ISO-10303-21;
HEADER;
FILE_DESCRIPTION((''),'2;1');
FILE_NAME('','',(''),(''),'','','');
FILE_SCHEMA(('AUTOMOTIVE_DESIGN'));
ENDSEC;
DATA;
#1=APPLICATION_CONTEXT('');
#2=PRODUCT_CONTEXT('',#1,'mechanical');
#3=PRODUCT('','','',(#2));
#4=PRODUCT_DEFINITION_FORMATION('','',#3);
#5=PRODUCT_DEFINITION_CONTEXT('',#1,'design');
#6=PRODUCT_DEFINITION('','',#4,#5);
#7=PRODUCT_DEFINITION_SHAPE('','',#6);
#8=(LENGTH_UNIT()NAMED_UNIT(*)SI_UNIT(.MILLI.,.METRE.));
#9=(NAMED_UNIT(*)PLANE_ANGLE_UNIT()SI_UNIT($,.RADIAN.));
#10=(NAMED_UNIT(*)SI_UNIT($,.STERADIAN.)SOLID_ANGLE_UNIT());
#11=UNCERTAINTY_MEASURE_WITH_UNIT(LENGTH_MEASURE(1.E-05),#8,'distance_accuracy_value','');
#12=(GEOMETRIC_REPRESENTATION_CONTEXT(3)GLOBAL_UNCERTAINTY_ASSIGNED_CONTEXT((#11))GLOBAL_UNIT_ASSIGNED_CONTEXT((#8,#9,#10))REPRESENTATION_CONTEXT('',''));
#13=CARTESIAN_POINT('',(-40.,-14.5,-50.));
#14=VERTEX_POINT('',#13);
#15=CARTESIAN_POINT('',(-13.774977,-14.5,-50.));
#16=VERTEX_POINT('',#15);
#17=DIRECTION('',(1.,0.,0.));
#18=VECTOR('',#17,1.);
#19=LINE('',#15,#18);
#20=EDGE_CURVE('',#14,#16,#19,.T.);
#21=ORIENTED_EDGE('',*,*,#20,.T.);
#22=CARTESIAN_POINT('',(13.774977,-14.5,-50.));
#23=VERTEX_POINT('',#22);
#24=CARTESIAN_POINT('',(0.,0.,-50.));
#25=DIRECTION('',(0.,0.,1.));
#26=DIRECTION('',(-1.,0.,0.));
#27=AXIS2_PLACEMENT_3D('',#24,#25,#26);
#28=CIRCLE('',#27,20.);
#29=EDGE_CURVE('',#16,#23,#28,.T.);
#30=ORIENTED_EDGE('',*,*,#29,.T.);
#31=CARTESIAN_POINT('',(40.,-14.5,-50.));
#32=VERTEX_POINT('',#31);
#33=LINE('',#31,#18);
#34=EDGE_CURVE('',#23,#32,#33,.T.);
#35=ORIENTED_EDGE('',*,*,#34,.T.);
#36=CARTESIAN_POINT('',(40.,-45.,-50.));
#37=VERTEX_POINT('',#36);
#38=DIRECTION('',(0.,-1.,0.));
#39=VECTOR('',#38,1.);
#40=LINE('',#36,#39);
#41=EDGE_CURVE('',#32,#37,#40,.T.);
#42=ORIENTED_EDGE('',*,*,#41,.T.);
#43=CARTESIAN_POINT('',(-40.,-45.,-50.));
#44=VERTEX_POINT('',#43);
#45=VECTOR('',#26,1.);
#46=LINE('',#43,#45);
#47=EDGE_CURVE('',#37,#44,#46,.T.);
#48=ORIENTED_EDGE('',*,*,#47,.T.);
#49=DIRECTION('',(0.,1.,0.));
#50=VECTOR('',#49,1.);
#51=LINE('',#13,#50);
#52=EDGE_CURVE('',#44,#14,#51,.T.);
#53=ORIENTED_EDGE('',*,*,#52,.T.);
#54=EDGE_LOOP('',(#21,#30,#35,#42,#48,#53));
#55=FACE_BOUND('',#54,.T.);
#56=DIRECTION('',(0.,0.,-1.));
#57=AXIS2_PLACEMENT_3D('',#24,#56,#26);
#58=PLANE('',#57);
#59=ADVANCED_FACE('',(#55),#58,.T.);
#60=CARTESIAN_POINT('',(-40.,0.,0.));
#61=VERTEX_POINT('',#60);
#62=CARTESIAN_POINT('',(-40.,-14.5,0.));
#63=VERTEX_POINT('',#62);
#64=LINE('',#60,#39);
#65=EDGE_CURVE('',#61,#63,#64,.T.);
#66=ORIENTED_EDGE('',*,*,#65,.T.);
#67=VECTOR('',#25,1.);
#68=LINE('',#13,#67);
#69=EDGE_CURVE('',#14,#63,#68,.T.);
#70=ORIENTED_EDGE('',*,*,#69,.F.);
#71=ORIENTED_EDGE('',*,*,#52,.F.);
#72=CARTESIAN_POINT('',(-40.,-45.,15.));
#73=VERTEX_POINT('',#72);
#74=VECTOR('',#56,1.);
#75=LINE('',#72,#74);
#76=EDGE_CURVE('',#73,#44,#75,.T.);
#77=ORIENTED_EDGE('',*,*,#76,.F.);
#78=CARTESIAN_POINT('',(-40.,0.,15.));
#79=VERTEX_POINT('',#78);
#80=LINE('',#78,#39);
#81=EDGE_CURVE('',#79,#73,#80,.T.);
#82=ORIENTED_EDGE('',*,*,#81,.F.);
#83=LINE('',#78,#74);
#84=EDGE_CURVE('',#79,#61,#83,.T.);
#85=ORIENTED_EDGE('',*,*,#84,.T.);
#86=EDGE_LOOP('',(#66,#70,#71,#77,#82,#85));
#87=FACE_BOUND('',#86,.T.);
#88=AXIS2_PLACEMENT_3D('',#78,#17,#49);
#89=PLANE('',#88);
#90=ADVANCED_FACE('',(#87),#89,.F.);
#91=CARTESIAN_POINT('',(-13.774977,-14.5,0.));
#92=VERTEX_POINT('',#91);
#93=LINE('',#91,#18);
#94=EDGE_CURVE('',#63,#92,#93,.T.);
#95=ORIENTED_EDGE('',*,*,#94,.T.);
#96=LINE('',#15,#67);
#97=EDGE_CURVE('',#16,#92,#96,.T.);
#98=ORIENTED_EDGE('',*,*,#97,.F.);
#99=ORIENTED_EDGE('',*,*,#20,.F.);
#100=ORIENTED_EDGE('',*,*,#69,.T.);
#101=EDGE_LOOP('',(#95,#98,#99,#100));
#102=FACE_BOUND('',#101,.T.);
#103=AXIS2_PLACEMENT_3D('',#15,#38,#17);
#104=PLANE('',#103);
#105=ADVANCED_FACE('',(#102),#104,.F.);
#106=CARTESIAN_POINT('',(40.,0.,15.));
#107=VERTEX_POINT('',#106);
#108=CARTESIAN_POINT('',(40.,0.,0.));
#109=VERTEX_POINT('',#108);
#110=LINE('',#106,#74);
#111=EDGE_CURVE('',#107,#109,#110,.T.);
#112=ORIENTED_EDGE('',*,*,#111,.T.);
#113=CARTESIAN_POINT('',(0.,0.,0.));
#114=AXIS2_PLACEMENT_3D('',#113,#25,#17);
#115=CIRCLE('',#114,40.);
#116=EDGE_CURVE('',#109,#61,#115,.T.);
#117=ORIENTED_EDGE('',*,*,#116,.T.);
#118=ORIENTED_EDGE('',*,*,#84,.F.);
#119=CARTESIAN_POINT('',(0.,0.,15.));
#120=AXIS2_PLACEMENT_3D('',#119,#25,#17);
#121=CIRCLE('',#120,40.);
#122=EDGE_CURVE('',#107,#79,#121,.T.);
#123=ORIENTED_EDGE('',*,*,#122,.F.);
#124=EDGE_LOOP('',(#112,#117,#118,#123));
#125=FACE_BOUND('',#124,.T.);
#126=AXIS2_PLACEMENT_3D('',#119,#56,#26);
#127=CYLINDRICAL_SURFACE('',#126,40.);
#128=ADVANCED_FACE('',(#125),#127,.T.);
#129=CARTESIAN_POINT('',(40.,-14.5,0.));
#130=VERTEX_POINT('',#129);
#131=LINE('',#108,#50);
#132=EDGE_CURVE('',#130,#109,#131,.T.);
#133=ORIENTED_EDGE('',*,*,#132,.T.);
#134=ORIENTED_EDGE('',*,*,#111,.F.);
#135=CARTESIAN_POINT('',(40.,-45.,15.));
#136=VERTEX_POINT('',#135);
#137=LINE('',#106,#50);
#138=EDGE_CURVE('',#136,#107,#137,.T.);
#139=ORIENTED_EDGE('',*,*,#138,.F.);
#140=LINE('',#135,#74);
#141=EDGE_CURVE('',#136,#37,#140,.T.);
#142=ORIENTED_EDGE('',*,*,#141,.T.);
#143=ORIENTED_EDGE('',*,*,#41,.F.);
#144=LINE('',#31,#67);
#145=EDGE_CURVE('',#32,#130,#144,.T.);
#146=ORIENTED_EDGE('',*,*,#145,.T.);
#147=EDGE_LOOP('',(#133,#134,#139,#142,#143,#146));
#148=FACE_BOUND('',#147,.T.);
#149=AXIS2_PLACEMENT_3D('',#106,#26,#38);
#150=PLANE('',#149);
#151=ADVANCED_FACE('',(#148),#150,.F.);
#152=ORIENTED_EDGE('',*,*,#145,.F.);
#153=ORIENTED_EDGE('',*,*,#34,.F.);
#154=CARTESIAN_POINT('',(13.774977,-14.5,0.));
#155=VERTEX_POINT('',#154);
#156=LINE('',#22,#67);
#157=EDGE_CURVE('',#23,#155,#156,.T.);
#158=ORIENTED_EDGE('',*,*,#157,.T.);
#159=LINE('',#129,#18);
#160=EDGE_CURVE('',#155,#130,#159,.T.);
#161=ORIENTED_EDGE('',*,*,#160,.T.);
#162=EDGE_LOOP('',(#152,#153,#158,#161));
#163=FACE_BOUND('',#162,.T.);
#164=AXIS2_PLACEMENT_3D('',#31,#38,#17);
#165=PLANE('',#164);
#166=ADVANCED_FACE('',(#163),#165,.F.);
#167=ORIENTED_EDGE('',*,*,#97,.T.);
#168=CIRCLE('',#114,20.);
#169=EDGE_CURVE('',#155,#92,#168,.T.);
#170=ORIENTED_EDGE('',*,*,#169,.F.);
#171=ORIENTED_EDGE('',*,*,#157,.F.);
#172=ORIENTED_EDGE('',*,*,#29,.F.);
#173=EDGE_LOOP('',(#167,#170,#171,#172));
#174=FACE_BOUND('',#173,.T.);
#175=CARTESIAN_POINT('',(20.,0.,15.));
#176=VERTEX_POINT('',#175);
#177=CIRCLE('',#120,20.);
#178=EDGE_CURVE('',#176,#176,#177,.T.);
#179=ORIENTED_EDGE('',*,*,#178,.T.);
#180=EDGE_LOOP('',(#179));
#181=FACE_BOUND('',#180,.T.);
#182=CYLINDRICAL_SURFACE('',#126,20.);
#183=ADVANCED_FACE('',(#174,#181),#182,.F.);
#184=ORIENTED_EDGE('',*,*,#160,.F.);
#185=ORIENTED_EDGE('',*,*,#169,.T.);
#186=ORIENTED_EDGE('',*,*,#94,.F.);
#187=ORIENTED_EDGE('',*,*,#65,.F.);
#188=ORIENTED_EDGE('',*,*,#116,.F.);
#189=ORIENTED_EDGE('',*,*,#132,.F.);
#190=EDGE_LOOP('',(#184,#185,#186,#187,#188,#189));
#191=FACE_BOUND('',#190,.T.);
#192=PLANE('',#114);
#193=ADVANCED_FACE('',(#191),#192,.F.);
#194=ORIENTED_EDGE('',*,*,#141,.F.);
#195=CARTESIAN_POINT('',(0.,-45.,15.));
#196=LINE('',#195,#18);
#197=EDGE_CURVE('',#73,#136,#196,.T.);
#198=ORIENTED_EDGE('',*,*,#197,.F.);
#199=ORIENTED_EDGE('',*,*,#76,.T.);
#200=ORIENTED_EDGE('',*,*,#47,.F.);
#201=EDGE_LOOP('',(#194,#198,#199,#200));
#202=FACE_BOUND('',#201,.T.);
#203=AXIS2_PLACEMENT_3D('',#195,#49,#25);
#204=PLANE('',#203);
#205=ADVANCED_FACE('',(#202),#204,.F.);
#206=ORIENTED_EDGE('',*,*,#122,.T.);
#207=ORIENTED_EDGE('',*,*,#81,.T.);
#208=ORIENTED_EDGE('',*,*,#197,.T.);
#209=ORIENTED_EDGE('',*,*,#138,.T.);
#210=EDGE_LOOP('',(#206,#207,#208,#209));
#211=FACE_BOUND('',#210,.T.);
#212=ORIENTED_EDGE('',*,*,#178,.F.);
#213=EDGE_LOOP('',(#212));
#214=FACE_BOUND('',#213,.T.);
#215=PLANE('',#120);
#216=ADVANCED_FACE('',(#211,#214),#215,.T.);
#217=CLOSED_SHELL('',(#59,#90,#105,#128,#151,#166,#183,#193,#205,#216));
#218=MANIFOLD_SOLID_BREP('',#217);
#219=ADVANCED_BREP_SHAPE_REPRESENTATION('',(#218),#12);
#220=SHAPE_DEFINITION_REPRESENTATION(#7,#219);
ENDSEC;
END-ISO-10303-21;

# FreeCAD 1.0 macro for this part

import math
import FreeCAD as App
import Part
import Sketcher
from FreeCAD import Vector

doc = App.newDocument("Part")
body = doc.addObject("PartDesign::Body", "Body")

# Sketch on XY plane
sketch1 = body.newObject("Sketcher::SketchObject", "Sketch")
sketch1.AttachmentSupport = (doc.getObject("XY_Plane"), [""])
sketch1.MapMode = "FlatFace"
sketch1.addGeometry([
    Part.ArcOfCircle(Part.Circle(Vector(0, 0, 0), Vector(0, 0, 1), 40), math.radians(0), math.radians(180)),  # 0
    Part.LineSegment(Vector(-40, 0, 0), Vector(-40, -45, 0)),  # 1
    Part.LineSegment(Vector(-40, -45, 0), Vector(40, -45, 0)),  # 2
    Part.LineSegment(Vector(40, -45, 0), Vector(40, 0, 0)),  # 3
    Part.Circle(Vector(0, 0, 0), Vector(0, 0, 1), 20),  # 4
], False)
sketch1.addConstraint([
    Sketcher.Constraint("Tangent", 0, 2, 1, 1),
    Sketcher.Constraint("Coincident", 1, 2, 2, 1),
    Sketcher.Constraint("Coincident", 2, 2, 3, 1),
    Sketcher.Constraint("Tangent", 3, 2, 0, 1),
    Sketcher.Constraint("Vertical", 1),
    Sketcher.Constraint("Horizontal", 2),
    Sketcher.Constraint("Vertical", 3),
    Sketcher.Constraint("Coincident", 0, 3, -1, 1),
    Sketcher.Constraint("Coincident", 4, 3, -1, 1),
    Sketcher.Constraint("Diameter", 4, 40.0),
    Sketcher.Constraint("Radius", 0, 40.0),
    Sketcher.Constraint("DistanceY", 1, 2, 1, 1, 45.0),
])
pad1 = body.newObject("PartDesign::Pad", "Pad")
pad1.Profile = sketch1
pad1.Length = 15

# Sketch on XY plane
sketch2 = body.newObject("Sketcher::SketchObject", "Sketch001")
sketch2.AttachmentSupport = (doc.getObject("XY_Plane"), [""])
sketch2.MapMode = "FlatFace"
sketch2.AttachmentOffset = App.Placement(Vector(0, 0, -50), App.Rotation())
sketch2.addGeometry([
    Part.LineSegment(Vector(-40, -14, 0), Vector(-14, -14, 0)),  # 0
    Part.ArcOfCircle(Part.Circle(Vector(0, 0, 0), Vector(0, 0, 1), 20), math.radians(-134), math.radians(-46)),  # 1
    Part.LineSegment(Vector(14, -14, 0), Vector(40, -14, 0)),  # 2
    Part.LineSegment(Vector(40, -14, 0), Vector(40, -45, 0)),  # 3
    Part.LineSegment(Vector(40, -45, 0), Vector(-40, -45, 0)),  # 4
    Part.LineSegment(Vector(-40, -45, 0), Vector(-40, -14, 0)),  # 5
], False)
sketch2.addConstraint([
    Sketcher.Constraint("Coincident", 0, 2, 1, 1),
    Sketcher.Constraint("Coincident", 1, 2, 2, 1),
    Sketcher.Constraint("Coincident", 2, 2, 3, 1),
    Sketcher.Constraint("Coincident", 3, 2, 4, 1),
    Sketcher.Constraint("Coincident", 4, 2, 5, 1),
    Sketcher.Constraint("Coincident", 5, 2, 0, 1),
    Sketcher.Constraint("Horizontal", 0),
    Sketcher.Constraint("Horizontal", 2),
    Sketcher.Constraint("Vertical", 3),
    Sketcher.Constraint("Horizontal", 4),
    Sketcher.Constraint("Vertical", 5),
    Sketcher.Constraint("Coincident", 1, 3, -1, 1),
    Sketcher.Constraint("Symmetric", 2, 2, 5, 2, -2),
    Sketcher.Constraint("Radius", 1, 20.0),
    Sketcher.Constraint("DistanceX", 4, 2, 4, 1, 80.0),
    Sketcher.Constraint("DistanceY", 3, 2, 3, 1, 30.5),
    Sketcher.Constraint("DistanceY", 3, 2, -1, 1, 45.0),
])
pad2 = body.newObject("PartDesign::Pad", "Pad001")
pad2.Profile = sketch2
pad2.Length = 50

doc.recompute()
